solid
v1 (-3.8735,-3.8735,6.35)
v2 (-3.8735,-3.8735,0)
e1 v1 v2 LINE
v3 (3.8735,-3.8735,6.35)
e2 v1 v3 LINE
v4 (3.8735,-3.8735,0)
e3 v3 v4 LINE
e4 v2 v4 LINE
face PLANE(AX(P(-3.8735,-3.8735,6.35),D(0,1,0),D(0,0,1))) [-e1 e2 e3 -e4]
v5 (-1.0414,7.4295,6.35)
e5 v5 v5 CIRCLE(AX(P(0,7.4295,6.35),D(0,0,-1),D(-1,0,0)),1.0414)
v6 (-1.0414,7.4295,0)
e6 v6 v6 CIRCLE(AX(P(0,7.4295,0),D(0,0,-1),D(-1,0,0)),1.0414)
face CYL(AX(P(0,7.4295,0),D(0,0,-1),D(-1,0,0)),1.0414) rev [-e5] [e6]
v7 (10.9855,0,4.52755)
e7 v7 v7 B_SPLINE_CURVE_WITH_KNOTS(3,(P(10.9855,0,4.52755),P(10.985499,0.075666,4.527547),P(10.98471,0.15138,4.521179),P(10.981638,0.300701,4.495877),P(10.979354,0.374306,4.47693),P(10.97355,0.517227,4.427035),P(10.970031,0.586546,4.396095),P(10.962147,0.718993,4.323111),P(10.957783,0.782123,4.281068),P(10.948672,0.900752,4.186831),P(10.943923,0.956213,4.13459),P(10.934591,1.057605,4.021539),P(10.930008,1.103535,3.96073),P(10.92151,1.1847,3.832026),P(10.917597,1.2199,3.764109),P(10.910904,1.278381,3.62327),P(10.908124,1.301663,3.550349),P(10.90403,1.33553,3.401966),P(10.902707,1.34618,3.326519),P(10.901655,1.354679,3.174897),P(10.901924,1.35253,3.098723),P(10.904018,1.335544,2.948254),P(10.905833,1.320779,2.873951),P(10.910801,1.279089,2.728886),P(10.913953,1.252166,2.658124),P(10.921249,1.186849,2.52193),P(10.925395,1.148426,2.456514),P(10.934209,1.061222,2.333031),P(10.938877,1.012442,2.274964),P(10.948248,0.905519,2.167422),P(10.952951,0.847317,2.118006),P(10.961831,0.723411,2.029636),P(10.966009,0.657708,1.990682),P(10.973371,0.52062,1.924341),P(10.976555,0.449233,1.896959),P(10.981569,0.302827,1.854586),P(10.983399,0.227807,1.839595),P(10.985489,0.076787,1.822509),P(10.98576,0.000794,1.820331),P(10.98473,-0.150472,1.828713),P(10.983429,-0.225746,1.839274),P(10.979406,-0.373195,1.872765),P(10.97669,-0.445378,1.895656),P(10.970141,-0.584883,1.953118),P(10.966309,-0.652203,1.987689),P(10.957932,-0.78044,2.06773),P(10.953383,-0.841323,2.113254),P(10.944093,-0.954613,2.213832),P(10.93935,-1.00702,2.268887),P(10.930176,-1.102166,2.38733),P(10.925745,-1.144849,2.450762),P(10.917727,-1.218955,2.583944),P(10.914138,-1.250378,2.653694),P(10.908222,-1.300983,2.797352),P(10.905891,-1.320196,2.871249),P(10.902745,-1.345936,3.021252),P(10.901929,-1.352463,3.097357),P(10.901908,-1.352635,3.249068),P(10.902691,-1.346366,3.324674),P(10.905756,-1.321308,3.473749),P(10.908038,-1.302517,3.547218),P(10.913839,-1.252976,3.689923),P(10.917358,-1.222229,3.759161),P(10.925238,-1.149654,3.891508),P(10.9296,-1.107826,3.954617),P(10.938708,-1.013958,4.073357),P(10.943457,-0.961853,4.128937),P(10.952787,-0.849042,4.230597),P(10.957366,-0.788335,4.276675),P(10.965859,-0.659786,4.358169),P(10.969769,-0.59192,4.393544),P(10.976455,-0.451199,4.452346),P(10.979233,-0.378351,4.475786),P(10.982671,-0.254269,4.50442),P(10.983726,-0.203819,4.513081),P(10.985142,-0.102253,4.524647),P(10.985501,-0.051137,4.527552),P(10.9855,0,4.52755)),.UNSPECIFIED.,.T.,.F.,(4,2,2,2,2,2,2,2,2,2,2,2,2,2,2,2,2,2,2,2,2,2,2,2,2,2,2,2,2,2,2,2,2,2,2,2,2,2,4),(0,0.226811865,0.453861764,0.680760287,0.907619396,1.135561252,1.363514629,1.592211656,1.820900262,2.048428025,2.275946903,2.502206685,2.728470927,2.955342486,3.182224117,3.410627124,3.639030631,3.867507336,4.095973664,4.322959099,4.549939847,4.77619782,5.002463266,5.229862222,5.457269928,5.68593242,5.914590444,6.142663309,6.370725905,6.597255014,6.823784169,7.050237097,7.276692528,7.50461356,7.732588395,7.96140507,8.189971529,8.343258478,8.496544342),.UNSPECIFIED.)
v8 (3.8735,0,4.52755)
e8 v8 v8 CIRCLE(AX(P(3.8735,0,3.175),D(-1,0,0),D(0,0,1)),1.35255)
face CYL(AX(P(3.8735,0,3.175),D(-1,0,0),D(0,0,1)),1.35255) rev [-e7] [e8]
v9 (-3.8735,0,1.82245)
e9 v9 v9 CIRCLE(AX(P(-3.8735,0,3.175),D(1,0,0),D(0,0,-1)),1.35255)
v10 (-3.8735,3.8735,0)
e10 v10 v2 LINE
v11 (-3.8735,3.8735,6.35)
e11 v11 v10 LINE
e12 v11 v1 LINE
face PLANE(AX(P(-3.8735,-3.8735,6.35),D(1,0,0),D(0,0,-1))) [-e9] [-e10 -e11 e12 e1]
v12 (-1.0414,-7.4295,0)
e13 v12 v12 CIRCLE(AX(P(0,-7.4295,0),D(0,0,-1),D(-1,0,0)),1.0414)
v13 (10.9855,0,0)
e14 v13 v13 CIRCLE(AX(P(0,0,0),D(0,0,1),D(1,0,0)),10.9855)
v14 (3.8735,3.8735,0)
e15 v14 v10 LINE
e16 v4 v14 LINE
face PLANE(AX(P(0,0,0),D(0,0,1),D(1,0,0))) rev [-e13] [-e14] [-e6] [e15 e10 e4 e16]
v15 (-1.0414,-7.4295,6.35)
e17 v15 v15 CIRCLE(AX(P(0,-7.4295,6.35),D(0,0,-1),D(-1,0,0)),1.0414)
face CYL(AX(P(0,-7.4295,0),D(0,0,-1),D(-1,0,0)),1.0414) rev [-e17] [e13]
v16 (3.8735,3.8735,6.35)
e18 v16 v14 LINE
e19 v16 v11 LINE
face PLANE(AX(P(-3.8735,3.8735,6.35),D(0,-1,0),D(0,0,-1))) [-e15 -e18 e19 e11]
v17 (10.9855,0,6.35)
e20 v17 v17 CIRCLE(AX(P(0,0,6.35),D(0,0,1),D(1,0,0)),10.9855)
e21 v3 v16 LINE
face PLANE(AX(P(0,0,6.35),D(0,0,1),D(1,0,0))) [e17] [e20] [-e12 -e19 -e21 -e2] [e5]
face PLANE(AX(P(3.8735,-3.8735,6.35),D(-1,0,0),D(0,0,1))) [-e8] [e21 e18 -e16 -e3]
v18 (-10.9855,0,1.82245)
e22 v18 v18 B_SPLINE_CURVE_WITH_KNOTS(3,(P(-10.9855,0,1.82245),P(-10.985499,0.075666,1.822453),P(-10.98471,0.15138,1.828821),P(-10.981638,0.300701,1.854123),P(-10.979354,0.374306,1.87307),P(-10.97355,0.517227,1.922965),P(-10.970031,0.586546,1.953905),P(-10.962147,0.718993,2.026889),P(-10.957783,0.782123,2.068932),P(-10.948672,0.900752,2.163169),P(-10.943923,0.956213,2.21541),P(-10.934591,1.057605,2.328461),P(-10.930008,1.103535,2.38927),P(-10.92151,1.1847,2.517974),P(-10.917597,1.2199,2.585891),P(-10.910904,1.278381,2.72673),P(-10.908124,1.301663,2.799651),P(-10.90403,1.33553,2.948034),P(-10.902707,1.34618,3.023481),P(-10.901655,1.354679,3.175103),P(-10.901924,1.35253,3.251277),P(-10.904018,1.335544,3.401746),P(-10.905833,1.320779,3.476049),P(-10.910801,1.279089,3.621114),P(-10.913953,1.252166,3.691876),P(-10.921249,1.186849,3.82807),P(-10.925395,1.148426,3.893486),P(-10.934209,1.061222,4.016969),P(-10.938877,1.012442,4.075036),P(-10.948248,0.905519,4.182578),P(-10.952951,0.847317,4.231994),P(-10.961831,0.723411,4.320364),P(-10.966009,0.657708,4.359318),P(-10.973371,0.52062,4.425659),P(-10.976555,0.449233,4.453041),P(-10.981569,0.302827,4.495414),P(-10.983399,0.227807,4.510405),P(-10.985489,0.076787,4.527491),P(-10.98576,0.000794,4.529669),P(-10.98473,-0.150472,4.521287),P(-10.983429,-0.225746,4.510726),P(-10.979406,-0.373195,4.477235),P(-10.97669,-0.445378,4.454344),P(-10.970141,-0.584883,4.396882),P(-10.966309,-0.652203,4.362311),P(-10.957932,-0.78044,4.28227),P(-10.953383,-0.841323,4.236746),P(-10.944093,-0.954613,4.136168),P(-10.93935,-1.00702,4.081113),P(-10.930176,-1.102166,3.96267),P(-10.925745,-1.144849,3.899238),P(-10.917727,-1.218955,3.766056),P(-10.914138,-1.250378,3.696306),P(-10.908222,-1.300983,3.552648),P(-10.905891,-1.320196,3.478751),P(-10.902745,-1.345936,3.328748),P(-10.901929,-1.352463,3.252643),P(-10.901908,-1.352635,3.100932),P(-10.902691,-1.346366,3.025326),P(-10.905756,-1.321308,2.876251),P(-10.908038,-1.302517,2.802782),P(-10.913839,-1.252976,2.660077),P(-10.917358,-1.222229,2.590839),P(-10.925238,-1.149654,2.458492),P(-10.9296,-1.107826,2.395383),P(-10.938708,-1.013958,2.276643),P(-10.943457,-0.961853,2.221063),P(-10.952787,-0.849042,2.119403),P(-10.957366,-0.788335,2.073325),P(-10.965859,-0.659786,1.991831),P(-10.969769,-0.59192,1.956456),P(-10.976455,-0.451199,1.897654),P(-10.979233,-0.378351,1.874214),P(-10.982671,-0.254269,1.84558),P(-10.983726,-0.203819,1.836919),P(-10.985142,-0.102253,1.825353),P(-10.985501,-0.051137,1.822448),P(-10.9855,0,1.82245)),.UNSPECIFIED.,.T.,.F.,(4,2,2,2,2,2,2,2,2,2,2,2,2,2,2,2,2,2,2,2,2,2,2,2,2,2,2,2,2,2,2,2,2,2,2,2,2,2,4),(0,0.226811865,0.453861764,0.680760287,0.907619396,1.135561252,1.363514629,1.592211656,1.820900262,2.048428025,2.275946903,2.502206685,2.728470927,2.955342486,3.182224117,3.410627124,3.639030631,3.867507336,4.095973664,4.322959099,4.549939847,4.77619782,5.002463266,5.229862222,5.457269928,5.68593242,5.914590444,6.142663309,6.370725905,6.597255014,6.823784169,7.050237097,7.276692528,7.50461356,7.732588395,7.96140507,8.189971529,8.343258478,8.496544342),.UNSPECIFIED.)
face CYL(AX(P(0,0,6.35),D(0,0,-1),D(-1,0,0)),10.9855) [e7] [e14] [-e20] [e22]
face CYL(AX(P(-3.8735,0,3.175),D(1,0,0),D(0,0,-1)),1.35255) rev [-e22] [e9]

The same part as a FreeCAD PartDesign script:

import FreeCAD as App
import Part
import Sketcher

V = App.Vector
Q = App.Units.Quantity

doc = App.newDocument("Part")
body = doc.addObject("PartDesign::Body", "Body")

sketch1 = body.newObject("Sketcher::SketchObject", "Sketch")
sketch1.AttachmentSupport = (doc.getObject("XY_Plane"), [""])
sketch1.MapMode = "FlatFace"
sketch1.addGeometry(Part.Circle(V(0, 0, 0), V(0, 0, 1), 11), False)
sketch1.addGeometry(Part.LineSegment(V(4, -4, 0), V(-4, -4, 0)), False)
sketch1.addGeometry(Part.LineSegment(V(-4, -4, 0), V(-4, 4, 0)), False)
sketch1.addGeometry(Part.LineSegment(V(-4, 4, 0), V(4, 4, 0)), False)
sketch1.addGeometry(Part.LineSegment(V(4, 4, 0), V(4, -4, 0)), False)
sketch1.addConstraint(Sketcher.Constraint("Coincident", 1, 2, 2, 1))
sketch1.addConstraint(Sketcher.Constraint("Coincident", 2, 2, 3, 1))
sketch1.addConstraint(Sketcher.Constraint("Coincident", 3, 2, 4, 1))
sketch1.addConstraint(Sketcher.Constraint("Coincident", 4, 2, 1, 1))
sketch1.addConstraint(Sketcher.Constraint("Horizontal", 1))
sketch1.addConstraint(Sketcher.Constraint("Vertical", 2))
sketch1.addConstraint(Sketcher.Constraint("Horizontal", 3))
sketch1.addConstraint(Sketcher.Constraint("Vertical", 4))
sketch1.addConstraint(Sketcher.Constraint("Coincident", 0, 3, -1, 1))
sketch1.addConstraint(Sketcher.Constraint("Symmetric", 1, 2, 3, 2, -1, 1))
sketch1.addConstraint(Sketcher.Constraint("Equal", 3, 2))
sketch1.addConstraint(Sketcher.Constraint("Diameter", 0, Q("0.865 in")))
sketch1.addConstraint(Sketcher.Constraint("DistanceX", 1, 2, 1, 1, Q("0.305 in")))
pad1 = body.newObject("PartDesign::Pad", "Pad")
pad1.Profile = sketch1
pad1.Length = Q("0.25 in")

sketch2 = body.newObject("Sketcher::SketchObject", "Sketch001")
sketch2.AttachmentSupport = (doc.getObject("YZ_Plane"), [""])
sketch2.MapMode = "FlatFace"
sketch2.AttachmentOffset = App.Placement(V(0, 0, 0.4325 * 25.4), App.Rotation())
sketch2.addGeometry(Part.Circle(V(0, 3.2, 0), V(0, 0, 1), 1.4), False)
sketch2.addConstraint(Sketcher.Constraint("PointOnObject", 0, 3, -2))
sketch2.addConstraint(Sketcher.Constraint("Diameter", 0, Q("0.1065 in")))
sketch2.addConstraint(Sketcher.Constraint("DistanceY", -1, 1, 0, 3, Q("0.125 in")))
doc.recompute()
hole = body.newObject("PartDesign::Hole", "Hole")
hole.Profile = sketch2
hole.ThreadType = "None"
hole.Diameter = Q("0.1065 in")
hole.DepthType = "Dimension"
hole.Depth = Q("0.28 in")
hole.DrillPoint = "Flat"

sketch3 = body.newObject("Sketcher::SketchObject", "Sketch002")
sketch3.AttachmentSupport = (doc.getObject("YZ_Plane"), [""])
sketch3.MapMode = "FlatFace"
sketch3.AttachmentOffset = App.Placement(V(0, 0, 0.1525 * 25.4), App.Rotation())
sketch3.addGeometry(Part.Circle(V(0, 3.2, 0), V(0, 0, 1), 1.4), False)
sketch3.addConstraint(Sketcher.Constraint("PointOnObject", 0, 3, -2))
sketch3.addConstraint(Sketcher.Constraint("Diameter", 0, Q("0.1065 in")))
sketch3.addConstraint(Sketcher.Constraint("DistanceY", -1, 1, 0, 3, Q("0.125 in")))
doc.recompute()
hole2 = body.newObject("PartDesign::Hole", "Hole001")
hole2.Profile = sketch3
hole2.ThreadType = "None"
hole2.Diameter = Q("0.1065 in")
hole2.DepthType = "Dimension"
hole2.Depth = Q("0.28 in")
hole2.DrillPoint = "Flat"
hole2.Reversed = True

sketch4 = body.newObject("Sketcher::SketchObject", "Sketch003")
sketch4.AttachmentSupport = (doc.getObject("YZ_Plane"), [""])
sketch4.MapMode = "FlatFace"
sketch4.AttachmentOffset = App.Placement(V(0, 0, -0.1525 * 25.4), App.Rotation())
sketch4.addGeometry(Part.Circle(V(0, 3.2, 0), V(0, 0, 1), 1.4), False)
sketch4.addConstraint(Sketcher.Constraint("PointOnObject", 0, 3, -2))
sketch4.addConstraint(Sketcher.Constraint("Diameter", 0, Q("0.1065 in")))
sketch4.addConstraint(Sketcher.Constraint("DistanceY", -1, 1, 0, 3, Q("0.125 in")))
doc.recompute()
hole3 = body.newObject("PartDesign::Hole", "Hole002")
hole3.Profile = sketch4
hole3.ThreadType = "None"
hole3.Diameter = Q("0.1065 in")
hole3.DepthType = "ThroughAll"

sketch5 = body.newObject("Sketcher::SketchObject", "Sketch004")
sketch5.AttachmentSupport = (doc.getObject("XY_Plane"), [""])
sketch5.MapMode = "FlatFace"
sketch5.addGeometry(Part.Circle(V(0, -7.4, 0), V(0, 0, 1), 1), False)
sketch5.addGeometry(Part.Circle(V(0, 7.4, 0), V(0, 0, 1), 1), False)
sketch5.addConstraint(Sketcher.Constraint("Equal", 0, 1))
sketch5.addConstraint(Sketcher.Constraint("Symmetric", 0, 3, 1, 3, -1, 1))
sketch5.addConstraint(Sketcher.Constraint("PointOnObject", 0, 3, -2))
sketch5.addConstraint(Sketcher.Constraint("Diameter", 0, Q("0.082 in")))
sketch5.addConstraint(Sketcher.Constraint("DistanceY", 0, 3, 1, 3, Q("0.585 in")))
doc.recompute()
hole4 = body.newObject("PartDesign::Hole", "Hole003")
hole4.Profile = sketch5
hole4.ThreadType = "None"
hole4.Diameter = Q("0.082 in")
hole4.DepthType = "ThroughAll"
hole4.Reversed = True

doc.recompute()
